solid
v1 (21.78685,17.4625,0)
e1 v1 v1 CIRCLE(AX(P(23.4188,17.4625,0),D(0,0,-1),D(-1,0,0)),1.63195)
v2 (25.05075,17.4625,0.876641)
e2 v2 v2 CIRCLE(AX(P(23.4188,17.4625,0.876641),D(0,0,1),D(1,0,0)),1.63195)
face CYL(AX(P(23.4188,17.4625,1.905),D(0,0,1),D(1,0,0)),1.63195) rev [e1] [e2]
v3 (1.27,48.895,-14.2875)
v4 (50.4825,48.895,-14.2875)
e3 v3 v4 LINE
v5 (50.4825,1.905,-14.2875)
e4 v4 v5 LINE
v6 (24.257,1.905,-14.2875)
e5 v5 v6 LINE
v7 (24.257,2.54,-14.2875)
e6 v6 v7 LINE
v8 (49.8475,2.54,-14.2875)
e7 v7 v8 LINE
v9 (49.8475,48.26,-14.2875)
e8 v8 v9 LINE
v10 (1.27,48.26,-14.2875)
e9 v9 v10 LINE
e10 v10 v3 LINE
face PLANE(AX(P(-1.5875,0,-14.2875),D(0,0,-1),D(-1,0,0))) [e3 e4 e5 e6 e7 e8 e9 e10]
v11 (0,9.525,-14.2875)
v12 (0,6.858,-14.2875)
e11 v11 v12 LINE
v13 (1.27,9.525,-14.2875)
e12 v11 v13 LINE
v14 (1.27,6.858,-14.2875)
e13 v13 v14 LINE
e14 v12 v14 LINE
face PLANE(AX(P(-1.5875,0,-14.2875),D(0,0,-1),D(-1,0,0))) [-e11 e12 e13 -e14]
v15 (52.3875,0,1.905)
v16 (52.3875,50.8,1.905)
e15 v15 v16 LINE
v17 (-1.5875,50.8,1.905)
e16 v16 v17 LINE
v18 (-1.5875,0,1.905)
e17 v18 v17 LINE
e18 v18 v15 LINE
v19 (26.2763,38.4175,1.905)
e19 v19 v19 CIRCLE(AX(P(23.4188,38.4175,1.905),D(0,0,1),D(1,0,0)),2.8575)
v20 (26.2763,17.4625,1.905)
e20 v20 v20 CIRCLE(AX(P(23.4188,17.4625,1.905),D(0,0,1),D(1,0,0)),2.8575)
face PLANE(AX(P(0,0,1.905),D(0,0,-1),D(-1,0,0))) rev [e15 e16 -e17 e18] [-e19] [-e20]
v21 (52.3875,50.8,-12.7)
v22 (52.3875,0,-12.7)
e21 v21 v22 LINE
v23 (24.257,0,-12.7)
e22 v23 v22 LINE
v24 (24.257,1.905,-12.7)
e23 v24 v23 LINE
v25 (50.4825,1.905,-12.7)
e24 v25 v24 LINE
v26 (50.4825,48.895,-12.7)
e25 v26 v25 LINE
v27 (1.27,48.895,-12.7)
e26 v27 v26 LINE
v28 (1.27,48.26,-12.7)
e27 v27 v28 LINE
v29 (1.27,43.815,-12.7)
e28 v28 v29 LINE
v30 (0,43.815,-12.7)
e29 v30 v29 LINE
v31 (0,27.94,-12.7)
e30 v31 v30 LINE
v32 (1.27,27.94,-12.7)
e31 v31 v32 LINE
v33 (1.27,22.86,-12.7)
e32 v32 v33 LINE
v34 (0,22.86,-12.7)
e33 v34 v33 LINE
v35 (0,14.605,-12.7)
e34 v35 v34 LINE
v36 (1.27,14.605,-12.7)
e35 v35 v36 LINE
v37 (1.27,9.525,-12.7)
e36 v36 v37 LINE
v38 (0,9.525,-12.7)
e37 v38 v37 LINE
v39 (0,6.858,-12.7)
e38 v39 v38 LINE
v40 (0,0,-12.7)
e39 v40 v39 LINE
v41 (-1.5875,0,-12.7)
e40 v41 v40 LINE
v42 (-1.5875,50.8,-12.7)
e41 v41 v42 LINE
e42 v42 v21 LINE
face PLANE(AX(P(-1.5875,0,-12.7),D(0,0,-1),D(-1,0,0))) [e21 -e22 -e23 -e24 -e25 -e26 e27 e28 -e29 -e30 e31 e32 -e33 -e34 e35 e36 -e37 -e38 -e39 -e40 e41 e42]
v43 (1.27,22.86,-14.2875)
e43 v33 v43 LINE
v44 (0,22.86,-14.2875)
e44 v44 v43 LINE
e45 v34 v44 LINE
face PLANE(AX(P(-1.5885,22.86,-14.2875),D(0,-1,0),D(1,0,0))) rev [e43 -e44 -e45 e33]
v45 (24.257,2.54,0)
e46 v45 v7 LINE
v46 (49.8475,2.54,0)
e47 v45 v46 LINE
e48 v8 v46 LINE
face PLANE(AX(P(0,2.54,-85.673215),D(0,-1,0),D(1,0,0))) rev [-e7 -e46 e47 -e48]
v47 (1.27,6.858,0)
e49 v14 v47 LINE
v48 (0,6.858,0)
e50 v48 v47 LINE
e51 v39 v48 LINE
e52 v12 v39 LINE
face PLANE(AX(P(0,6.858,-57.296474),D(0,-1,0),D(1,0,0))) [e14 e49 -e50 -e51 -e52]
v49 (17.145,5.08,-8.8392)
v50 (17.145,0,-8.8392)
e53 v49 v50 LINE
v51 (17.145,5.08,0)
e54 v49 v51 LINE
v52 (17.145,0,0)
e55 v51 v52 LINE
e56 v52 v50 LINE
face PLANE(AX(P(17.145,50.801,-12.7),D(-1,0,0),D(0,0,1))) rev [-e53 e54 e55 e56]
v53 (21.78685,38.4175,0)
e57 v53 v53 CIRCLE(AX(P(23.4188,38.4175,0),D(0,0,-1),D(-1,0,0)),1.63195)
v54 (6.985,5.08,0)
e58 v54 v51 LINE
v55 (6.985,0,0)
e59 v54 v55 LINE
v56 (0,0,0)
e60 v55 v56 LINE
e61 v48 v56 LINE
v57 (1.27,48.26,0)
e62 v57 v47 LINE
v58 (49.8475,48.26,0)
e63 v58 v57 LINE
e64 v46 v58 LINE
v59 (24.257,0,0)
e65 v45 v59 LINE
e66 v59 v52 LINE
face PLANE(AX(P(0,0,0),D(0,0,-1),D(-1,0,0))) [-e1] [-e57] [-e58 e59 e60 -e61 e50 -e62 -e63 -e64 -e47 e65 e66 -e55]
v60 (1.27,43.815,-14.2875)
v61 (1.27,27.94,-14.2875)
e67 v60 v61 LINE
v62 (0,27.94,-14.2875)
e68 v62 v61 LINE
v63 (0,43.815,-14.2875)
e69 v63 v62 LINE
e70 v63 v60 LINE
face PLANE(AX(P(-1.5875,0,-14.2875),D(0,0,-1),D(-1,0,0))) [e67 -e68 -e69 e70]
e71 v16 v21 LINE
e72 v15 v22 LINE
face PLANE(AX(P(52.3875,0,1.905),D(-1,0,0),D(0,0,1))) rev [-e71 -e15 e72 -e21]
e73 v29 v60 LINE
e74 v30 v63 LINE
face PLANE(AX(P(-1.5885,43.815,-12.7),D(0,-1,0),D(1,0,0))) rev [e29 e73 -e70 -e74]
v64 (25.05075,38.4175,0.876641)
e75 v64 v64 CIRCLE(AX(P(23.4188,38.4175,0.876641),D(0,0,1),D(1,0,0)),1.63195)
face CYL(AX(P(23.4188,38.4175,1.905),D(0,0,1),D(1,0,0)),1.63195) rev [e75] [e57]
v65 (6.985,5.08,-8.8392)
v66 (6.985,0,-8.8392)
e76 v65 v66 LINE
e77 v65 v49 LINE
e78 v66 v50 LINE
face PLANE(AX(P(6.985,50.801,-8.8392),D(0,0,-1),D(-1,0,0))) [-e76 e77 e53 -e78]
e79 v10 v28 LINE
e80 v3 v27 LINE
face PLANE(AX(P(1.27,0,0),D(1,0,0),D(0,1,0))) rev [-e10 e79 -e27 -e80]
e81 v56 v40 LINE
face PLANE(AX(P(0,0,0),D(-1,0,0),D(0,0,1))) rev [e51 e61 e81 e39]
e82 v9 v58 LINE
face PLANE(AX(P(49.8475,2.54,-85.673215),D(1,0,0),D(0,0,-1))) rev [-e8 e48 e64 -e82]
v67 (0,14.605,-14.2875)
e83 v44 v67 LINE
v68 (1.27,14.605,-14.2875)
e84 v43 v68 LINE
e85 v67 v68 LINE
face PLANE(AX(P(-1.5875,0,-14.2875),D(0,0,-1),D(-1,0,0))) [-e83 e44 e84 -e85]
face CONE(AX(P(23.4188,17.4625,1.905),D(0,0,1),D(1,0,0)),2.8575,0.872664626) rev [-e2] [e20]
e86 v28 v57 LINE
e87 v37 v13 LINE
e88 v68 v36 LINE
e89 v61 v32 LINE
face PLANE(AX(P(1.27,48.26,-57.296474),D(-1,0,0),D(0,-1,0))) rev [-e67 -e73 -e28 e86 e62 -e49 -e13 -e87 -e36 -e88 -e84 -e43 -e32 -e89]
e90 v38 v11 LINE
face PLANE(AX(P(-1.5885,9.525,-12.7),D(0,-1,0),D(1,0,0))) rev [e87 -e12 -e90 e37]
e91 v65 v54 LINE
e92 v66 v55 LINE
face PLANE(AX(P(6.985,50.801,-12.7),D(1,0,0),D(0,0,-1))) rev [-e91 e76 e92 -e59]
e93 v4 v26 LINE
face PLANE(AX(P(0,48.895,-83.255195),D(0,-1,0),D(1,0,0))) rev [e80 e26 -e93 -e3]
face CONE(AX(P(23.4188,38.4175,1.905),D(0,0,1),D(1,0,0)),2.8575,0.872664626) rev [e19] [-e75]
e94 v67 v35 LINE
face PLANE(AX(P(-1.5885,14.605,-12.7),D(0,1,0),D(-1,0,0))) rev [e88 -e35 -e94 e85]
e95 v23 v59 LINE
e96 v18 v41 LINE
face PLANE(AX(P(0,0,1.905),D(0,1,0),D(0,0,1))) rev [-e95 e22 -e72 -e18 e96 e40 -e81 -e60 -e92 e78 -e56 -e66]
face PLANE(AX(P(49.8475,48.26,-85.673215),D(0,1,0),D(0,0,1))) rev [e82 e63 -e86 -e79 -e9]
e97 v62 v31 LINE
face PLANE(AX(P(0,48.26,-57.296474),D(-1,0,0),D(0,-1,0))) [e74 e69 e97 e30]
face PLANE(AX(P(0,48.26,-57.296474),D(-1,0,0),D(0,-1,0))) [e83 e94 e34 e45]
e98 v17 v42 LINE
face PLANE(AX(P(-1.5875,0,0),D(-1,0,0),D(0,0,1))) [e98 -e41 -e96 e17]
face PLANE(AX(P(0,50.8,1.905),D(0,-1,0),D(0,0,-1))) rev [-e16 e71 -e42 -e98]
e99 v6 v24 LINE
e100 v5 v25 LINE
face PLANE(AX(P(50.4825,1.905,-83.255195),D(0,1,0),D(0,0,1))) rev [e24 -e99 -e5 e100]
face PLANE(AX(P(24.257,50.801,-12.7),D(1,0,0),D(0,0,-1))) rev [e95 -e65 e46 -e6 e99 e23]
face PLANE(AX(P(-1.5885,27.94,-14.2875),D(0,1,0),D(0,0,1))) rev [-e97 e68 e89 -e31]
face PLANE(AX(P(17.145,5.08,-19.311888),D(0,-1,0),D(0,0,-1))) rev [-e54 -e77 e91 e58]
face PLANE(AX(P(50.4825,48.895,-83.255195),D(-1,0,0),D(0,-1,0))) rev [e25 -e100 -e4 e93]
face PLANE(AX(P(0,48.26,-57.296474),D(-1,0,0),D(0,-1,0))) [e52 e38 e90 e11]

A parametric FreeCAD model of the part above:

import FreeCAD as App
import Part
import Sketcher
Q = App.Units.Quantity


def add_polygon(sketch, points):
    """Adds a closed chain of lines whose ends are joined by coincident constraints."""
    first, n = sketch.GeometryCount, len(points)
    for a, b in zip(points, points[1:] + points[:1]):
        sketch.addGeometry(Part.LineSegment(App.Vector(*a, 0), App.Vector(*b, 0)), False)
    for i in range(n):
        sketch.addConstraint(Sketcher.Constraint("Coincident", first + i, 2, first + (i + 1) % n, 1))

doc = App.newDocument("Part")
body = doc.addObject("PartDesign::Body", "Body")

# Sketch on XY plane
sketch1 = body.newObject("Sketcher::SketchObject", "Sketch")
sketch1.AttachmentSupport = (doc.getObject("XY_Plane"), [""])
sketch1.MapMode = "FlatFace"
add_polygon(sketch1, [(0, 51), (0, 0), (52, 0), (52, 51)])  # lines 0-3
sketch1.addConstraint(Sketcher.Constraint("Vertical", 0))
sketch1.addConstraint(Sketcher.Constraint("Horizontal", 1))
sketch1.addConstraint(Sketcher.Constraint("Vertical", 2))
sketch1.addConstraint(Sketcher.Constraint("Horizontal", 3))
sketch1.addConstraint(Sketcher.Constraint("Coincident", 0, 2, -1, 1))
sketch1.addConstraint(Sketcher.Constraint("DistanceY", 0, 2, 0, 1, Q("2 in")))
sketch1.addConstraint(Sketcher.Constraint("DistanceX", 1, 1, 1, 2, Q("2.0625 in")))
pad1 = body.newObject("PartDesign::Pad", "Pad")
pad1.Profile = sketch1
pad1.Length = Q("0.075 in")

# Sketch on YZ plane
sketch2 = body.newObject("Sketcher::SketchObject", "Sketch001")
sketch2.AttachmentSupport = (doc.getObject("YZ_Plane"), [""])
sketch2.MapMode = "FlatFace"
add_polygon(sketch2, [(51, -13), (0, -13), (0, 2), (51, 2)])  # lines 0-3
sketch2.addConstraint(Sketcher.Constraint("Horizontal", 0))
sketch2.addConstraint(Sketcher.Constraint("Vertical", 1))
sketch2.addConstraint(Sketcher.Constraint("Horizontal", 2))
sketch2.addConstraint(Sketcher.Constraint("Vertical", 3))
sketch2.addConstraint(Sketcher.Constraint("PointOnObject", 0, 2, -2))
sketch2.addConstraint(Sketcher.Constraint("DistanceX", 0, 2, 0, 1, Q("2 in")))
sketch2.addConstraint(Sketcher.Constraint("DistanceY", 0, 2, -1, 1, Q("0.5 in")))
sketch2.addConstraint(Sketcher.Constraint("DistanceY", 1, 1, 1, 2, Q("0.575 in")))
pad2 = body.newObject("PartDesign::Pad", "Pad001")
pad2.Profile = sketch2
pad2.Length = Q("0.0625 in")
pad2.Reversed = True

# Sketch on XY plane
sketch3 = body.newObject("Sketcher::SketchObject", "Sketch002")
sketch3.AttachmentSupport = (doc.getObject("XY_Plane"), [""])
sketch3.MapMode = "FlatFace"
add_polygon(sketch3, [(0, 50.8), (52.4, 50.8), (52.4, 0), (0, 0), (0, 2.5), (49.8, 2.5), (49.8, 48.3), (0, 48.3)])  # lines 0-7
sketch3.addConstraint(Sketcher.Constraint("Horizontal", 0))
sketch3.addConstraint(Sketcher.Constraint("Vertical", 1))
sketch3.addConstraint(Sketcher.Constraint("Horizontal", 2))
sketch3.addConstraint(Sketcher.Constraint("Vertical", 3))
sketch3.addConstraint(Sketcher.Constraint("Horizontal", 4))
sketch3.addConstraint(Sketcher.Constraint("Vertical", 5))
sketch3.addConstraint(Sketcher.Constraint("Horizontal", 6))
sketch3.addConstraint(Sketcher.Constraint("Vertical", 7))
sketch3.addConstraint(Sketcher.Constraint("Coincident", 2, 2, -1, 1))
sketch3.addConstraint(Sketcher.Constraint("PointOnObject", 6, 2, -2))
sketch3.addConstraint(Sketcher.Constraint("Equal", 3, 7))
sketch3.addConstraint(Sketcher.Constraint("DistanceY", 1, 2, 1, 1, Q("2 in")))
sketch3.addConstraint(Sketcher.Constraint("DistanceY", 3, 1, 3, 2, Q("0.1 in")))
sketch3.addConstraint(Sketcher.Constraint("DistanceX", 4, 2, 1, 2, Q("0.1 in")))
sketch3.addConstraint(Sketcher.Constraint("DistanceX", 0, 1, 0, 2, Q("2.0625 in")))
pad3 = body.newObject("PartDesign::Pad", "Pad002")
pad3.Profile = sketch3
pad3.Length = Q("0.5 in")
pad3.Reversed = True

# Sketch on XZ plane
sketch4 = body.newObject("Sketcher::SketchObject", "Sketch003")
sketch4.AttachmentSupport = (doc.getObject("XZ_Plane"), [""])
sketch4.MapMode = "FlatFace"
add_polygon(sketch4, [(7, -8.8), (7, -12.7), (17.1, -12.7), (17.1, -8.8)])  # lines 0-3
sketch4.addConstraint(Sketcher.Constraint("Vertical", 0))
sketch4.addConstraint(Sketcher.Constraint("Horizontal", 1))
sketch4.addConstraint(Sketcher.Constraint("Vertical", 2))
sketch4.addConstraint(Sketcher.Constraint("Horizontal", 3))
sketch4.addConstraint(Sketcher.Constraint("DistanceX", 1, 1, 1, 2, Q("0.4 in")))
sketch4.addConstraint(Sketcher.Constraint("DistanceY", 0, 2, -1, 1, Q("0.5 in")))
sketch4.addConstraint(Sketcher.Constraint("DistanceY", 0, 2, 0, 1, Q("0.152 in")))
sketch4.addConstraint(Sketcher.Constraint("DistanceX", -1, 1, 0, 2, Q("0.275 in")))
pocket1 = body.newObject("PartDesign::Pocket", "Pocket")
pocket1.Profile = sketch4
pocket1.Type = "UpToFirst"

# Sketch on XZ plane
sketch5 = body.newObject("Sketcher::SketchObject", "Sketch004")
sketch5.AttachmentSupport = (doc.getObject("XZ_Plane"), [""])
sketch5.MapMode = "FlatFace"
add_polygon(sketch5, [(0, 0), (0, -13), (7, -13), (7, 0)])  # lines 0-3
sketch5.addConstraint(Sketcher.Constraint("Vertical", 0))
sketch5.addConstraint(Sketcher.Constraint("Horizontal", 1))
sketch5.addConstraint(Sketcher.Constraint("Vertical", 2))
sketch5.addConstraint(Sketcher.Constraint("Horizontal", 3))
sketch5.addConstraint(Sketcher.Constraint("Coincident", 3, 2, -1, 1))
sketch5.addConstraint(Sketcher.Constraint("DistanceY", 0, 2, 0, 1, Q("0.5 in")))
sketch5.addConstraint(Sketcher.Constraint("DistanceX", 1, 1, 1, 2, Q("0.275 in")))
pocket2 = body.newObject("PartDesign::Pocket", "Pocket001")
pocket2.Profile = sketch5
pocket2.Type = "UpToFirst"

# Sketch on XZ plane
sketch6 = body.newObject("Sketcher::SketchObject", "Sketch005")
sketch6.AttachmentSupport = (doc.getObject("XZ_Plane"), [""])
sketch6.MapMode = "FlatFace"
add_polygon(sketch6, [(17, 0), (17, -13), (24, -13), (24, 0)])  # lines 0-3
sketch6.addConstraint(Sketcher.Constraint("Vertical", 0))
sketch6.addConstraint(Sketcher.Constraint("Horizontal", 1))
sketch6.addConstraint(Sketcher.Constraint("Vertical", 2))
sketch6.addConstraint(Sketcher.Constraint("Horizontal", 3))
sketch6.addConstraint(Sketcher.Constraint("PointOnObject", 2, 2, -1))
sketch6.addConstraint(Sketcher.Constraint("DistanceY", 0, 2, 0, 1, Q("0.5 in")))
sketch6.addConstraint(Sketcher.Constraint("DistanceX", 1, 1, 1, 2, Q("0.28 in")))
sketch6.addConstraint(Sketcher.Constraint("DistanceX", -1, 1, 0, 2, Q("0.675 in")))
pocket3 = body.newObject("PartDesign::Pocket", "Pocket002")
pocket3.Profile = sketch6
pocket3.Type = "UpToFirst"

# Sketch on XY plane
sketch7 = body.newObject("Sketcher::SketchObject", "Sketch006")
sketch7.AttachmentSupport = (doc.getObject("XY_Plane"), [""])
sketch7.MapMode = "FlatFace"
add_polygon(sketch7, [(17.1, 5.1), (17.1, 2.5), (7, 2.5), (7, 5.1)])  # lines 0-3
sketch7.addConstraint(Sketcher.Constraint("Vertical", 0))
sketch7.addConstraint(Sketcher.Constraint("Horizontal", 1))
sketch7.addConstraint(Sketcher.Constraint("Vertical", 2))
sketch7.addConstraint(Sketcher.Constraint("Horizontal", 3))
sketch7.addConstraint(Sketcher.Constraint("DistanceX", 1, 2, 1, 1, Q("0.4 in")))
sketch7.addConstraint(Sketcher.Constraint("DistanceY", 0, 2, 0, 1, Q("0.1 in")))
sketch7.addConstraint(Sketcher.Constraint("DistanceY", -1, 1, 0, 2, Q("0.1 in")))
sketch7.addConstraint(Sketcher.Constraint("DistanceX", -1, 1, 0, 2, Q("0.675 in")))
pad4 = body.newObject("PartDesign::Pad", "Pad003")
pad4.Profile = sketch7
pad4.Length = Q("0.348 in")
pad4.Reversed = True

# Sketch on XY plane
sketch8 = body.newObject("Sketcher::SketchObject", "Sketch007")
sketch8.AttachmentSupport = (doc.getObject("XY_Plane"), [""])
sketch8.MapMode = "FlatFace"
add_polygon(sketch8, [(1.3, 48.3), (1.3, 6.9), (0, 6.9), (0, 48.3)])  # lines 0-3
sketch8.addConstraint(Sketcher.Constraint("Vertical", 0))
sketch8.addConstraint(Sketcher.Constraint("Horizontal", 1))
sketch8.addConstraint(Sketcher.Constraint("Vertical", 2))
sketch8.addConstraint(Sketcher.Constraint("Horizontal", 3))
sketch8.addConstraint(Sketcher.Constraint("PointOnObject", 1, 2, -2))
sketch8.addConstraint(Sketcher.Constraint("DistanceX", 1, 2, 1, 1, Q("0.05 in")))
sketch8.addConstraint(Sketcher.Constraint("DistanceY", 0, 2, 0, 1, Q("1.63 in")))
sketch8.addConstraint(Sketcher.Constraint("DistanceY", -1, 1, 2, 2, Q("1.9 in")))
pad5 = body.newObject("PartDesign::Pad", "Pad004")
pad5.Profile = sketch8
pad5.Length = Q("0.5625 in")
pad5.Reversed = True

# Sketch on XY plane
sketch9 = body.newObject("Sketcher::SketchObject", "Sketch008")
sketch9.AttachmentSupport = (doc.getObject("XY_Plane"), [""])
sketch9.MapMode = "FlatFace"
sketch9.AttachmentOffset = App.Placement(App.Vector(0, 0, -0.5 * 25.4), App.Rotation())
add_polygon(sketch9, [(0, 48.3), (0, 48.9), (50.5, 48.9), (50.5, 1.9), (24.3, 1.9), (24.3, 2.5), (49.8, 2.5), (49.8, 48.3)])  # lines 0-7
sketch9.addConstraint(Sketcher.Constraint("Vertical", 0))
sketch9.addConstraint(Sketcher.Constraint("Horizontal", 1))
sketch9.addConstraint(Sketcher.Constraint("Vertical", 2))
sketch9.addConstraint(Sketcher.Constraint("Horizontal", 3))
sketch9.addConstraint(Sketcher.Constraint("Vertical", 4))
sketch9.addConstraint(Sketcher.Constraint("Horizontal", 5))
sketch9.addConstraint(Sketcher.Constraint("Vertical", 6))
sketch9.addConstraint(Sketcher.Constraint("Horizontal", 7))
sketch9.addConstraint(Sketcher.Constraint("PointOnObject", 0, 2, -2))
sketch9.addConstraint(Sketcher.Constraint("Equal", 0, 4))
sketch9.addConstraint(Sketcher.Constraint("DistanceY", 6, 1, 6, 2, Q("1.8 in")))
sketch9.addConstraint(Sketcher.Constraint("DistanceY", 2, 2, 2, 1, Q("1.85 in")))
sketch9.addConstraint(Sketcher.Constraint("DistanceY", -1, 1, 4, 2, Q("0.1 in")))
sketch9.addConstraint(Sketcher.Constraint("DistanceX", 1, 1, 1, 2, Q("1.9875 in")))
sketch9.addConstraint(Sketcher.Constraint("DistanceX", 3, 2, 3, 1, Q("1.0325 in")))
sketch9.addConstraint(Sketcher.Constraint("DistanceX", 5, 1, 5, 2, Q("1.0075 in")))
pad6 = body.newObject("PartDesign::Pad", "Pad005")
pad6.Profile = sketch9
pad6.Length = Q("0.0625 in")
pad6.Reversed = True

# Sketch on YZ plane
sketch10 = body.newObject("Sketcher::SketchObject", "Sketch009")
sketch10.AttachmentSupport = (doc.getObject("YZ_Plane"), [""])
sketch10.MapMode = "FlatFace"
sketch10.AttachmentOffset = App.Placement(App.Vector(0, 0, 0.05 * 25.4), App.Rotation())
add_polygon(sketch10, [(27.9, -12.7), (22.9, -12.7), (22.9, -14.3), (27.9, -14.3)])  # lines 0-3
sketch10.addConstraint(Sketcher.Constraint("Horizontal", 0))
sketch10.addConstraint(Sketcher.Constraint("Vertical", 1))
sketch10.addConstraint(Sketcher.Constraint("Horizontal", 2))
sketch10.addConstraint(Sketcher.Constraint("Vertical", 3))
sketch10.addConstraint(Sketcher.Constraint("DistanceX", 0, 2, 0, 1, Q("0.2 in")))
sketch10.addConstraint(Sketcher.Constraint("DistanceX", -1, 1, 0, 2, Q("0.9 in")))
sketch10.addConstraint(Sketcher.Constraint("DistanceY", 0, 2, -1, 1, Q("0.5 in")))
sketch10.addConstraint(Sketcher.Constraint("DistanceY", 1, 2, 1, 1, Q("0.0625 in")))
pocket4 = body.newObject("PartDesign::Pocket", "Pocket003")
pocket4.Profile = sketch10
pocket4.Type = "UpToFirst"

# Sketch on YZ plane
sketch11 = body.newObject("Sketcher::SketchObject", "Sketch010")
sketch11.AttachmentSupport = (doc.getObject("YZ_Plane"), [""])
sketch11.MapMode = "FlatFace"
sketch11.AttachmentOffset = App.Placement(App.Vector(0, 0, 0.05 * 25.4), App.Rotation())
add_polygon(sketch11, [(14.6, -12.7), (9.5, -12.7), (9.5, -14.3), (14.6, -14.3)])  # lines 0-3
sketch11.addConstraint(Sketcher.Constraint("Horizontal", 0))
sketch11.addConstraint(Sketcher.Constraint("Vertical", 1))
sketch11.addConstraint(Sketcher.Constraint("Horizontal", 2))
sketch11.addConstraint(Sketcher.Constraint("Vertical", 3))
sketch11.addConstraint(Sketcher.Constraint("DistanceX", 0, 2, 0, 1, Q("0.2 in")))
sketch11.addConstraint(Sketcher.Constraint("DistanceY", 0, 2, -1, 1, Q("0.5 in")))
sketch11.addConstraint(Sketcher.Constraint("DistanceY", 1, 2, 1, 1, Q("0.0625 in")))
sketch11.addConstraint(Sketcher.Constraint("DistanceX", -1, 1, 0, 2, Q("0.375 in")))
pocket5 = body.newObject("PartDesign::Pocket", "Pocket004")
pocket5.Profile = sketch11
pocket5.Type = "UpToFirst"

# Sketch on YZ plane
sketch12 = body.newObject("Sketcher::SketchObject", "Sketch011")
sketch12.AttachmentSupport = (doc.getObject("YZ_Plane"), [""])
sketch12.MapMode = "FlatFace"
sketch12.AttachmentOffset = App.Placement(App.Vector(0, 0, 0.05 * 25.4), App.Rotation())
add_polygon(sketch12, [(48.9, -12.7), (43.8, -12.7), (43.8, -14.3), (48.9, -14.3)])  # lines 0-3
sketch12.addConstraint(Sketcher.Constraint("Horizontal", 0))
sketch12.addConstraint(Sketcher.Constraint("Vertical", 1))
sketch12.addConstraint(Sketcher.Constraint("Horizontal", 2))
sketch12.addConstraint(Sketcher.Constraint("Vertical", 3))
sketch12.addConstraint(Sketcher.Constraint("DistanceX", 0, 2, 0, 1, Q("0.2 in")))
sketch12.addConstraint(Sketcher.Constraint("DistanceY", 0, 2, -1, 1, Q("0.5 in")))
sketch12.addConstraint(Sketcher.Constraint("DistanceY", 1, 2, 1, 1, Q("0.0625 in")))
sketch12.addConstraint(Sketcher.Constraint("DistanceX", -1, 1, 0, 2, Q("1.725 in")))
pocket6 = body.newObject("PartDesign::Pocket", "Pocket005")
pocket6.Profile = sketch12
pocket6.Type = "UpToFirst"

# Sketch on XY plane
sketch13 = body.newObject("Sketcher::SketchObject", "Sketch012")
sketch13.AttachmentSupport = (doc.getObject("XY_Plane"), [""])
sketch13.MapMode = "FlatFace"
sketch13.AttachmentOffset = App.Placement(App.Vector(0, 0, 0.075 * 25.4), App.Rotation())
sketch13.addGeometry(Part.Circle(App.Vector(23.4, 38.4, 0), App.Vector(0, 0, 1), 1.6), False)
sketch13.addGeometry(Part.Circle(App.Vector(23.4, 17.5, 0), App.Vector(0, 0, 1), 1.6), False)
sketch13.addConstraint(Sketcher.Constraint("Equal", 0, 1))
sketch13.addConstraint(Sketcher.Constraint("Vertical", 0, 3, 1, 3))
sketch13.addConstraint(Sketcher.Constraint("Diameter", 0, Q("0.1285 in")))
sketch13.addConstraint(Sketcher.Constraint("DistanceX", -1, 1, 0, 3, Q("0.922 in")))
sketch13.addConstraint(Sketcher.Constraint("DistanceY", -1, 1, 1, 3, Q("0.6875 in")))
sketch13.addConstraint(Sketcher.Constraint("DistanceY", 1, 3, 0, 3, Q("0.825 in")))
doc.recompute()
hole = body.newObject("PartDesign::Hole", "Hole")
hole.Profile = sketch13
hole.ThreadType = "None"
hole.Diameter = Q("0.1285 in")
hole.DepthType = "Dimension"
hole.Depth = Q("0.295 in")
hole.DrillPoint = "Angled"
hole.DrillPointAngle = 118
hole.HoleCutType = "Countersink"
hole.HoleCutDiameter = Q("0.225 in")
hole.HoleCutCountersinkAngle = 100

doc.recompute()
